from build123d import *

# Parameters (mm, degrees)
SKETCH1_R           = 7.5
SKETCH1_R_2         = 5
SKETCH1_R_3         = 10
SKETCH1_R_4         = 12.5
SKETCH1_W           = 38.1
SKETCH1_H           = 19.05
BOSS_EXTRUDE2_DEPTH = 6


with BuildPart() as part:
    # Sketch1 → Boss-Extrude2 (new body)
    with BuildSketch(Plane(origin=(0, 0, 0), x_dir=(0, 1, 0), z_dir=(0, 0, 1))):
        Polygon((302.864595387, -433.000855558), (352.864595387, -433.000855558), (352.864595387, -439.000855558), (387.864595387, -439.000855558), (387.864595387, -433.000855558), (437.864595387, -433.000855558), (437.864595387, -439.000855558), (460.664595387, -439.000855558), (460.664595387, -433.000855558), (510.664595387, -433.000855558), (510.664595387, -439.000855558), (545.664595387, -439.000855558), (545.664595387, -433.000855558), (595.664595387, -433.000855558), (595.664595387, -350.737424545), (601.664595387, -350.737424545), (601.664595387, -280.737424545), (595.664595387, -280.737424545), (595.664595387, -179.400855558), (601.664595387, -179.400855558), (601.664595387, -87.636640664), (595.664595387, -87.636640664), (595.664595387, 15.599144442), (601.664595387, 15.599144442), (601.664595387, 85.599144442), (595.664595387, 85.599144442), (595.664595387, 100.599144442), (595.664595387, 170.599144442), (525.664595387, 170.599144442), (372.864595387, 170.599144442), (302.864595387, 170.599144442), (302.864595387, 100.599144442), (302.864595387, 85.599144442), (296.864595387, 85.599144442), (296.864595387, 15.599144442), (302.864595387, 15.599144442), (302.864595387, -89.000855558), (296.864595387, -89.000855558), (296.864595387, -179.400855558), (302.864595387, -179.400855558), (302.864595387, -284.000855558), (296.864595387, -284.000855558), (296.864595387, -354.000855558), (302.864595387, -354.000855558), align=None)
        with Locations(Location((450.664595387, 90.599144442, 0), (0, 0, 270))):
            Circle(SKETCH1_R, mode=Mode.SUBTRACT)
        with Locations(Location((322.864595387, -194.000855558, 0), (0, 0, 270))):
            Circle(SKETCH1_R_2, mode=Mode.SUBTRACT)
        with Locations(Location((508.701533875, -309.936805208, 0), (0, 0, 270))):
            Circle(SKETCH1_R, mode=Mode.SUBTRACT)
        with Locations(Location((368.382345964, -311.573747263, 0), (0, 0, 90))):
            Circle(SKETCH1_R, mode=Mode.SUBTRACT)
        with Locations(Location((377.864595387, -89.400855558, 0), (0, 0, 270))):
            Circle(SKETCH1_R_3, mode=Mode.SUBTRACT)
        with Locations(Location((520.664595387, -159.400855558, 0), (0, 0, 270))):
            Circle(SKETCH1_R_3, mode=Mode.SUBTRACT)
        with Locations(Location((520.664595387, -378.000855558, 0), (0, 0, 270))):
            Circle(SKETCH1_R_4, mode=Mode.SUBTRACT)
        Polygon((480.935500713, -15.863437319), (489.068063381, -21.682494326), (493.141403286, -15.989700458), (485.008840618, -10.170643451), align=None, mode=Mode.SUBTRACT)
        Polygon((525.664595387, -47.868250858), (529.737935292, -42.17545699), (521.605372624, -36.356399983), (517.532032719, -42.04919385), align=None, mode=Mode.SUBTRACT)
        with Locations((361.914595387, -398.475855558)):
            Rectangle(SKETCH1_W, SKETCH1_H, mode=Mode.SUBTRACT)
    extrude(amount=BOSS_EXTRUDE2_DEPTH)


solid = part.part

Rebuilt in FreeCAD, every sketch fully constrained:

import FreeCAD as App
import Part
import Sketcher
from FreeCAD import Vector
Q = App.Units.Quantity

doc = App.newDocument("Part")
body = doc.addObject("PartDesign::Body", "Body")

# Sketch on XY plane
sketch1 = doc.addObject("Sketcher::SketchObject", "Sketch")
body.addObject(sketch1)
sketch1.AttachmentSupport = (doc.XY_Plane, [""])
sketch1.MapMode = "FlatFace"
sketch1.addGeometry([
    Part.LineSegment(Vector(433.000856, 302.864595, 0), Vector(433.000856, 352.864595, 0)),  # 0
    Part.LineSegment(Vector(433.000856, 352.864595, 0), Vector(439.000856, 352.864595, 0)),  # 1
    Part.LineSegment(Vector(439.000856, 352.864595, 0), Vector(439.000856, 387.864595, 0)),  # 2
    Part.LineSegment(Vector(439.000856, 387.864595, 0), Vector(433.000856, 387.864595, 0)),  # 3
    Part.LineSegment(Vector(433.000856, 387.864595, 0), Vector(433.000856, 437.864595, 0)),  # 4
    Part.LineSegment(Vector(433.000856, 437.864595, 0), Vector(439.000856, 437.864595, 0)),  # 5
    Part.LineSegment(Vector(439.000856, 437.864595, 0), Vector(439.000856, 460.664595, 0)),  # 6
    Part.LineSegment(Vector(439.000856, 460.664595, 0), Vector(433.000856, 460.664595, 0)),  # 7
    Part.LineSegment(Vector(433.000856, 460.664595, 0), Vector(433.000856, 510.664595, 0)),  # 8
    Part.LineSegment(Vector(433.000856, 510.664595, 0), Vector(439.000856, 510.664595, 0)),  # 9
    Part.LineSegment(Vector(439.000856, 510.664595, 0), Vector(439.000856, 545.664595, 0)),  # 10
    Part.LineSegment(Vector(439.000856, 545.664595, 0), Vector(433.000856, 545.664595, 0)),  # 11
    Part.LineSegment(Vector(433.000856, 545.664595, 0), Vector(433.000856, 595.664595, 0)),  # 12
    Part.LineSegment(Vector(433.000856, 595.664595, 0), Vector(350.737425, 595.664595, 0)),  # 13
    Part.LineSegment(Vector(350.737425, 595.664595, 0), Vector(350.737425, 601.664595, 0)),  # 14
    Part.LineSegment(Vector(350.737425, 601.664595, 0), Vector(280.737425, 601.664595, 0)),  # 15
    Part.LineSegment(Vector(280.737425, 601.664595, 0), Vector(280.737425, 595.664595, 0)),  # 16
    Part.LineSegment(Vector(280.737425, 595.664595, 0), Vector(179.400856, 595.664595, 0)),  # 17
    Part.LineSegment(Vector(179.400856, 595.664595, 0), Vector(179.400856, 601.664595, 0)),  # 18
    Part.LineSegment(Vector(179.400856, 601.664595, 0), Vector(87.636641, 601.664595, 0)),  # 19
    Part.LineSegment(Vector(87.636641, 601.664595, 0), Vector(87.636641, 595.664595, 0)),  # 20
    Part.LineSegment(Vector(87.636641, 595.664595, 0), Vector(-15.599144, 595.664595, 0)),  # 21
    Part.LineSegment(Vector(-15.599144, 595.664595, 0), Vector(-15.599144, 601.664595, 0)),  # 22
    Part.LineSegment(Vector(-15.599144, 601.664595, 0), Vector(-85.599144, 601.664595, 0)),  # 23
    Part.LineSegment(Vector(-85.599144, 601.664595, 0), Vector(-85.599144, 595.664595, 0)),  # 24
    Part.LineSegment(Vector(-85.599144, 595.664595, 0), Vector(-170.599144, 595.664595, 0)),  # 25
    Part.LineSegment(Vector(-170.599144, 595.664595, 0), Vector(-170.599144, 302.864595, 0)),  # 26
    Part.LineSegment(Vector(-170.599144, 302.864595, 0), Vector(-85.599144, 302.864595, 0)),  # 27
    Part.LineSegment(Vector(-85.599144, 302.864595, 0), Vector(-85.599144, 296.864595, 0)),  # 28
    Part.LineSegment(Vector(-85.599144, 296.864595, 0), Vector(-15.599144, 296.864595, 0)),  # 29
    Part.LineSegment(Vector(-15.599144, 296.864595, 0), Vector(-15.599144, 302.864595, 0)),  # 30
    Part.LineSegment(Vector(-15.599144, 302.864595, 0), Vector(89.000856, 302.864595, 0)),  # 31
    Part.LineSegment(Vector(89.000856, 302.864595, 0), Vector(89.000856, 296.864595, 0)),  # 32
    Part.LineSegment(Vector(89.000856, 296.864595, 0), Vector(179.400856, 296.864595, 0)),  # 33
    Part.LineSegment(Vector(179.400856, 296.864595, 0), Vector(179.400856, 302.864595, 0)),  # 34
    Part.LineSegment(Vector(179.400856, 302.864595, 0), Vector(284.000856, 302.864595, 0)),  # 35
    Part.LineSegment(Vector(284.000856, 302.864595, 0), Vector(284.000856, 296.864595, 0)),  # 36
    Part.LineSegment(Vector(284.000856, 296.864595, 0), Vector(354.000856, 296.864595, 0)),  # 37
    Part.LineSegment(Vector(354.000856, 296.864595, 0), Vector(354.000856, 302.864595, 0)),  # 38
    Part.LineSegment(Vector(354.000856, 302.864595, 0), Vector(433.000856, 302.864595, 0)),  # 39
    Part.LineSegment(Vector(408.000856, 380.964595, 0), Vector(408.000856, 342.864595, 0)),  # 40
    Part.LineSegment(Vector(408.000856, 342.864595, 0), Vector(388.950856, 342.864595, 0)),  # 41
    Part.LineSegment(Vector(388.950856, 342.864595, 0), Vector(388.950856, 380.964595, 0)),  # 42
    Part.LineSegment(Vector(388.950856, 380.964595, 0), Vector(408.000856, 380.964595, 0)),  # 43
    Part.Circle(Vector(311.573747, 368.382346, 0), Vector(0, 0, 1), 7.5),  # 44
    Part.Circle(Vector(194.000856, 322.864595, 0), Vector(0, 0, 1), 5),  # 45
    Part.Circle(Vector(378.000856, 520.664595, 0), Vector(0, 0, 1), 12.5),  # 46
    Part.Circle(Vector(309.936805, 508.701534, 0), Vector(0, 0, 1), 7.5),  # 47
    Part.Circle(Vector(159.400856, 520.664595, 0), Vector(0, 0, 1), 10),  # 48
    Part.Circle(Vector(89.400856, 377.864595, 0), Vector(0, 0, 1), 10),  # 49
    Part.LineSegment(Vector(42.175457, 529.737935, 0), Vector(47.868251, 525.664595, 0)),  # 50
    Part.LineSegment(Vector(47.868251, 525.664595, 0), Vector(42.049194, 517.532033, 0)),  # 51
    Part.LineSegment(Vector(42.049194, 517.532033, 0), Vector(36.3564, 521.605373, 0)),  # 52
    Part.LineSegment(Vector(36.3564, 521.605373, 0), Vector(42.175457, 529.737935, 0)),  # 53
    Part.Circle(Vector(-90.599144, 450.664595, 0), Vector(0, 0, 1), 7.5),  # 54
    Part.LineSegment(Vector(21.682494, 489.068063, 0), Vector(15.863437, 480.935501, 0)),  # 55
    Part.LineSegment(Vector(15.863437, 480.935501, 0), Vector(10.170643, 485.008841, 0)),  # 56
    Part.LineSegment(Vector(10.170643, 485.008841, 0), Vector(15.9897, 493.141403, 0)),  # 57
    Part.LineSegment(Vector(15.9897, 493.141403, 0), Vector(21.682494, 489.068063, 0)),  # 58
], False)
sketch1.addConstraint([
    Sketcher.Constraint("Coincident", 0, 2, 1, 1),
    Sketcher.Constraint("Coincident", 1, 2, 2, 1),
    Sketcher.Constraint("Coincident", 2, 2, 3, 1),
    Sketcher.Constraint("Coincident", 3, 2, 4, 1),
    Sketcher.Constraint("Coincident", 4, 2, 5, 1),
    Sketcher.Constraint("Coincident", 5, 2, 6, 1),
    Sketcher.Constraint("Coincident", 6, 2, 7, 1),
    Sketcher.Constraint("Coincident", 7, 2, 8, 1),
    Sketcher.Constraint("Coincident", 8, 2, 9, 1),
    Sketcher.Constraint("Coincident", 9, 2, 10, 1),
    Sketcher.Constraint("Coincident", 10, 2, 11, 1),
    Sketcher.Constraint("Coincident", 11, 2, 12, 1),
    Sketcher.Constraint("Coincident", 12, 2, 13, 1),
    Sketcher.Constraint("Coincident", 13, 2, 14, 1),
    Sketcher.Constraint("Coincident", 14, 2, 15, 1),
    Sketcher.Constraint("Coincident", 15, 2, 16, 1),
    Sketcher.Constraint("Coincident", 16, 2, 17, 1),
    Sketcher.Constraint("Coincident", 17, 2, 18, 1),
    Sketcher.Constraint("Coincident", 18, 2, 19, 1),
    Sketcher.Constraint("Coincident", 19, 2, 20, 1),
    Sketcher.Constraint("Coincident", 20, 2, 21, 1),
    Sketcher.Constraint("Coincident", 21, 2, 22, 1),
    Sketcher.Constraint("Coincident", 22, 2, 23, 1),
    Sketcher.Constraint("Coincident", 23, 2, 24, 1),
    Sketcher.Constraint("Coincident", 24, 2, 25, 1),
    Sketcher.Constraint("Coincident", 25, 2, 26, 1),
    Sketcher.Constraint("Coincident", 26, 2, 27, 1),
    Sketcher.Constraint("Coincident", 27, 2, 28, 1),
    Sketcher.Constraint("Coincident", 28, 2, 29, 1),
    Sketcher.Constraint("Coincident", 29, 2, 30, 1),
    Sketcher.Constraint("Coincident", 30, 2, 31, 1),
    Sketcher.Constraint("Coincident", 31, 2, 32, 1),
    Sketcher.Constraint("Coincident", 32, 2, 33, 1),
    Sketcher.Constraint("Coincident", 33, 2, 34, 1),
    Sketcher.Constraint("Coincident", 34, 2, 35, 1),
    Sketcher.Constraint("Coincident", 35, 2, 36, 1),
    Sketcher.Constraint("Coincident", 36, 2, 37, 1),
    Sketcher.Constraint("Coincident", 37, 2, 38, 1),
    Sketcher.Constraint("Coincident", 38, 2, 39, 1),
    Sketcher.Constraint("Coincident", 39, 2, 0, 1),
    Sketcher.Constraint("Coincident", 40, 2, 41, 1),
    Sketcher.Constraint("Coincident", 41, 2, 42, 1),
    Sketcher.Constraint("Coincident", 42, 2, 43, 1),
    Sketcher.Constraint("Coincident", 43, 2, 40, 1),
    Sketcher.Constraint("Coincident", 50, 2, 51, 1),
    Sketcher.Constraint("Coincident", 51, 2, 52, 1),
    Sketcher.Constraint("Coincident", 52, 2, 53, 1),
    Sketcher.Constraint("Coincident", 53, 2, 50, 1),
    Sketcher.Constraint("Coincident", 55, 2, 56, 1),
    Sketcher.Constraint("Coincident", 56, 2, 57, 1),
    Sketcher.Constraint("Coincident", 57, 2, 58, 1),
    Sketcher.Constraint("Coincident", 58, 2, 55, 1),
    Sketcher.Constraint("Vertical", 0),
    Sketcher.Constraint("Horizontal", 1),
    Sketcher.Constraint("Vertical", 2),
    Sketcher.Constraint("Horizontal", 3),
    Sketcher.Constraint("Vertical", 4),
    Sketcher.Constraint("Horizontal", 5),
    Sketcher.Constraint("Vertical", 6),
    Sketcher.Constraint("Horizontal", 7),
    Sketcher.Constraint("Vertical", 8),
    Sketcher.Constraint("Horizontal", 9),
    Sketcher.Constraint("Vertical", 10),
    Sketcher.Constraint("Horizontal", 11),
    Sketcher.Constraint("Vertical", 12),
    Sketcher.Constraint("Horizontal", 13),
    Sketcher.Constraint("Vertical", 14),
    Sketcher.Constraint("Horizontal", 15),
    Sketcher.Constraint("Vertical", 16),
    Sketcher.Constraint("Horizontal", 17),
    Sketcher.Constraint("Vertical", 18),
    Sketcher.Constraint("Horizontal", 19),
    Sketcher.Constraint("Vertical", 20),
    Sketcher.Constraint("Horizontal", 21),
    Sketcher.Constraint("Vertical", 22),
    Sketcher.Constraint("Horizontal", 23),
    Sketcher.Constraint("Vertical", 24),
    Sketcher.Constraint("Horizontal", 25),
    Sketcher.Constraint("Vertical", 26),
    Sketcher.Constraint("Horizontal", 27),
    Sketcher.Constraint("Vertical", 28),
    Sketcher.Constraint("Horizontal", 29),
    Sketcher.Constraint("Vertical", 30),
    Sketcher.Constraint("Horizontal", 31),
    Sketcher.Constraint("Vertical", 32),
    Sketcher.Constraint("Horizontal", 33),
    Sketcher.Constraint("Vertical", 34),
    Sketcher.Constraint("Horizontal", 35),
    Sketcher.Constraint("Vertical", 36),
    Sketcher.Constraint("Horizontal", 37),
    Sketcher.Constraint("Vertical", 38),
    Sketcher.Constraint("Horizontal", 39),
    Sketcher.Constraint("Vertical", 40),
    Sketcher.Constraint("Horizontal", 41),
    Sketcher.Constraint("Vertical", 42),
    Sketcher.Constraint("Horizontal", 43),
    Sketcher.Constraint("Equal", 44, 47),
    Sketcher.Constraint("Equal", 48, 49),
    Sketcher.Constraint("Equal", 47, 54),
    Sketcher.Constraint("Perpendicular", 50, 51),
    Sketcher.Constraint("Perpendicular", 51, 52),
    Sketcher.Constraint("Perpendicular", 52, 53),
    Sketcher.Constraint("Parallel", 53, 55),
    Sketcher.Constraint("Perpendicular", 55, 56),
    Sketcher.Constraint("Perpendicular", 56, 57),
    Sketcher.Constraint("Perpendicular", 57, 58),
    Sketcher.Constraint("Horizontal", 46, 3, 48, 3),
    Sketcher.Constraint("Horizontal", 13, 2, 16, 2),
    Sketcher.Constraint("Horizontal", 15, 2, 18, 2),
    Sketcher.Constraint("Horizontal", 17, 2, 20, 2),
    Sketcher.Constraint("Horizontal", 19, 2, 22, 2),
    Sketcher.Constraint("Horizontal", 21, 2, 24, 2),
    Sketcher.Constraint("Horizontal", 27, 2, 30, 2),
    Sketcher.Constraint("Horizontal", 29, 2, 32, 2),
    Sketcher.Constraint("Horizontal", 31, 2, 34, 2),
    Sketcher.Constraint("Horizontal", 33, 2, 36, 2),
    Sketcher.Constraint("Horizontal", 35, 2, 38, 2),
    Sketcher.Constraint("Vertical", 0, 2, 3, 2),
    Sketcher.Constraint("Vertical", 2, 2, 5, 2),
    Sketcher.Constraint("Vertical", 4, 2, 7, 2),
    Sketcher.Constraint("Vertical", 6, 2, 9, 2),
    Sketcher.Constraint("Vertical", 8, 2, 11, 2),
    Sketcher.Constraint("Vertical", 24, 2, 27, 2),
    Sketcher.Constraint("Vertical", 22, 2, 29, 2),
    Sketcher.Constraint("Vertical", 18, 2, 33, 2),
    Sketcher.Constraint("Equal", 15, 23),
    Sketcher.Constraint("Equal", 31, 35),
    Sketcher.Constraint("Equal", 29, 37),
    Sketcher.Constraint("Equal", 0, 4),
    Sketcher.Constraint("Equal", 4, 8),
    Sketcher.Constraint("Equal", 2, 10),
    Sketcher.Constraint("Equal", 8, 12),
    Sketcher.Constraint("Equal", 11, 14),
    Sketcher.Constraint("Equal", 24, 28),
    Sketcher.Constraint("Equal", 53, 55),
    Sketcher.Constraint("Equal", 52, 56),
    Sketcher.Constraint("Diameter", 44, Q("15 mm")),
    Sketcher.Constraint("Diameter", 45, Q("10 mm")),
    Sketcher.Constraint("Diameter", 46, Q("25 mm")),
    Sketcher.Constraint("Diameter", 48, Q("20 mm")),
    Sketcher.Constraint("DistanceX", 1, 1, 1, 2, Q("6 mm")),
    Sketcher.Constraint("DistanceX", 15, 2, 15, 1, Q("70 mm")),
    Sketcher.Constraint("DistanceX", 25, 2, 25, 1, Q("85 mm")),
    Sketcher.Constraint("DistanceX", 39, 1, 39, 2, Q("79 mm")),
    Sketcher.Constraint("DistanceY", 0, 1, 0, 2, Q("50 mm")),
    Sketcher.Constraint("DistanceY", 2, 1, 2, 2, Q("35 mm")),
    Sketcher.Constraint("Distance", 50, Q("7 mm")),
    Sketcher.Constraint("Distance", 51, Q("10 mm")),
    Sketcher.Constraint("DistanceX", 31, 1, 31, 2, Q("104.6 mm")),
    Sketcher.Constraint("DistanceX", 33, 1, 33, 2, Q("90.4 mm")),
    Sketcher.Constraint("DistanceY", 6, 1, 6, 2, Q("22.8 mm")),
    Sketcher.Constraint("DistanceY", 40, 2, 40, 1, Q("38.1 mm")),
    Sketcher.Constraint("DistanceX", 45, 3, 46, 3, Q("184 mm")),
    Sketcher.Constraint("DistanceY", 45, 3, 49, 3, Q("55 mm")),
    Sketcher.Constraint("DistanceX", 49, 3, 48, 3, Q("70 mm")),
    Sketcher.Constraint("DistanceX", 54, 3, 49, 3, Q("180 mm")),
    Sketcher.Constraint("DistanceY", 54, 3, 48, 3, Q("70 mm")),
    Sketcher.Constraint("DistanceX", 46, 3, 0, 2, Q("55 mm")),
    Sketcher.Constraint("DistanceY", 45, 3, 0, 2, Q("30 mm")),
    Sketcher.Constraint("DistanceY", 6, 2, 46, 3, Q("60 mm")),
    Sketcher.Constraint("DistanceX", 48, 3, 17, 2, Q("20 mm")),
    Sketcher.Constraint("DistanceX", 40, 2, 0, 2, Q("25 mm")),
    Sketcher.Constraint("DistanceY", 40, 2, 0, 2, Q("10 mm")),
    Sketcher.Constraint("DistanceY", 50, 2, 20, 2, Q("70 mm")),
    Sketcher.Constraint("DistanceX", 41, 2, 41, 1, Q("19.05 mm")),
    Sketcher.Constraint("DistanceX", 13, 2, 13, 1, Q("82.263431 mm")),
    Sketcher.Constraint("DistanceX", -1, 1, 52, 2, Q("36.3564 mm")),
    Sketcher.Constraint("DistanceY", -1, 1, 55, 2, Q("480.935501 mm")),
    Sketcher.Constraint("DistanceX", -1, 1, 57, 2, Q("15.9897 mm")),
    Sketcher.Constraint("DistanceX", 19, 2, 19, 1, Q("91.764215 mm")),
    Sketcher.Constraint("DistanceX", -1, 1, 19, 2, Q("87.636641 mm")),
    Sketcher.Constraint("DistanceX", -1, 1, 50, 2, Q("47.868251 mm")),
    Sketcher.Constraint("DistanceX", 45, 3, 44, 3, Q("117.572892 mm")),
    Sketcher.Constraint("DistanceY", 45, 3, 44, 3, Q("45.517751 mm")),
    Sketcher.Constraint("DistanceX", 47, 3, 46, 3, Q("68.06405 mm")),
    Sketcher.Constraint("DistanceY", 47, 3, 46, 3, Q("11.963062 mm")),
    Sketcher.Constraint("DistanceY", 55, 2, 52, 2, Q("40.669872 mm")),
])
pad1 = doc.addObject("PartDesign::Pad", "Pad")
body.addObject(pad1)
pad1.Profile = sketch1
pad1.Length = 6

doc.recompute()
